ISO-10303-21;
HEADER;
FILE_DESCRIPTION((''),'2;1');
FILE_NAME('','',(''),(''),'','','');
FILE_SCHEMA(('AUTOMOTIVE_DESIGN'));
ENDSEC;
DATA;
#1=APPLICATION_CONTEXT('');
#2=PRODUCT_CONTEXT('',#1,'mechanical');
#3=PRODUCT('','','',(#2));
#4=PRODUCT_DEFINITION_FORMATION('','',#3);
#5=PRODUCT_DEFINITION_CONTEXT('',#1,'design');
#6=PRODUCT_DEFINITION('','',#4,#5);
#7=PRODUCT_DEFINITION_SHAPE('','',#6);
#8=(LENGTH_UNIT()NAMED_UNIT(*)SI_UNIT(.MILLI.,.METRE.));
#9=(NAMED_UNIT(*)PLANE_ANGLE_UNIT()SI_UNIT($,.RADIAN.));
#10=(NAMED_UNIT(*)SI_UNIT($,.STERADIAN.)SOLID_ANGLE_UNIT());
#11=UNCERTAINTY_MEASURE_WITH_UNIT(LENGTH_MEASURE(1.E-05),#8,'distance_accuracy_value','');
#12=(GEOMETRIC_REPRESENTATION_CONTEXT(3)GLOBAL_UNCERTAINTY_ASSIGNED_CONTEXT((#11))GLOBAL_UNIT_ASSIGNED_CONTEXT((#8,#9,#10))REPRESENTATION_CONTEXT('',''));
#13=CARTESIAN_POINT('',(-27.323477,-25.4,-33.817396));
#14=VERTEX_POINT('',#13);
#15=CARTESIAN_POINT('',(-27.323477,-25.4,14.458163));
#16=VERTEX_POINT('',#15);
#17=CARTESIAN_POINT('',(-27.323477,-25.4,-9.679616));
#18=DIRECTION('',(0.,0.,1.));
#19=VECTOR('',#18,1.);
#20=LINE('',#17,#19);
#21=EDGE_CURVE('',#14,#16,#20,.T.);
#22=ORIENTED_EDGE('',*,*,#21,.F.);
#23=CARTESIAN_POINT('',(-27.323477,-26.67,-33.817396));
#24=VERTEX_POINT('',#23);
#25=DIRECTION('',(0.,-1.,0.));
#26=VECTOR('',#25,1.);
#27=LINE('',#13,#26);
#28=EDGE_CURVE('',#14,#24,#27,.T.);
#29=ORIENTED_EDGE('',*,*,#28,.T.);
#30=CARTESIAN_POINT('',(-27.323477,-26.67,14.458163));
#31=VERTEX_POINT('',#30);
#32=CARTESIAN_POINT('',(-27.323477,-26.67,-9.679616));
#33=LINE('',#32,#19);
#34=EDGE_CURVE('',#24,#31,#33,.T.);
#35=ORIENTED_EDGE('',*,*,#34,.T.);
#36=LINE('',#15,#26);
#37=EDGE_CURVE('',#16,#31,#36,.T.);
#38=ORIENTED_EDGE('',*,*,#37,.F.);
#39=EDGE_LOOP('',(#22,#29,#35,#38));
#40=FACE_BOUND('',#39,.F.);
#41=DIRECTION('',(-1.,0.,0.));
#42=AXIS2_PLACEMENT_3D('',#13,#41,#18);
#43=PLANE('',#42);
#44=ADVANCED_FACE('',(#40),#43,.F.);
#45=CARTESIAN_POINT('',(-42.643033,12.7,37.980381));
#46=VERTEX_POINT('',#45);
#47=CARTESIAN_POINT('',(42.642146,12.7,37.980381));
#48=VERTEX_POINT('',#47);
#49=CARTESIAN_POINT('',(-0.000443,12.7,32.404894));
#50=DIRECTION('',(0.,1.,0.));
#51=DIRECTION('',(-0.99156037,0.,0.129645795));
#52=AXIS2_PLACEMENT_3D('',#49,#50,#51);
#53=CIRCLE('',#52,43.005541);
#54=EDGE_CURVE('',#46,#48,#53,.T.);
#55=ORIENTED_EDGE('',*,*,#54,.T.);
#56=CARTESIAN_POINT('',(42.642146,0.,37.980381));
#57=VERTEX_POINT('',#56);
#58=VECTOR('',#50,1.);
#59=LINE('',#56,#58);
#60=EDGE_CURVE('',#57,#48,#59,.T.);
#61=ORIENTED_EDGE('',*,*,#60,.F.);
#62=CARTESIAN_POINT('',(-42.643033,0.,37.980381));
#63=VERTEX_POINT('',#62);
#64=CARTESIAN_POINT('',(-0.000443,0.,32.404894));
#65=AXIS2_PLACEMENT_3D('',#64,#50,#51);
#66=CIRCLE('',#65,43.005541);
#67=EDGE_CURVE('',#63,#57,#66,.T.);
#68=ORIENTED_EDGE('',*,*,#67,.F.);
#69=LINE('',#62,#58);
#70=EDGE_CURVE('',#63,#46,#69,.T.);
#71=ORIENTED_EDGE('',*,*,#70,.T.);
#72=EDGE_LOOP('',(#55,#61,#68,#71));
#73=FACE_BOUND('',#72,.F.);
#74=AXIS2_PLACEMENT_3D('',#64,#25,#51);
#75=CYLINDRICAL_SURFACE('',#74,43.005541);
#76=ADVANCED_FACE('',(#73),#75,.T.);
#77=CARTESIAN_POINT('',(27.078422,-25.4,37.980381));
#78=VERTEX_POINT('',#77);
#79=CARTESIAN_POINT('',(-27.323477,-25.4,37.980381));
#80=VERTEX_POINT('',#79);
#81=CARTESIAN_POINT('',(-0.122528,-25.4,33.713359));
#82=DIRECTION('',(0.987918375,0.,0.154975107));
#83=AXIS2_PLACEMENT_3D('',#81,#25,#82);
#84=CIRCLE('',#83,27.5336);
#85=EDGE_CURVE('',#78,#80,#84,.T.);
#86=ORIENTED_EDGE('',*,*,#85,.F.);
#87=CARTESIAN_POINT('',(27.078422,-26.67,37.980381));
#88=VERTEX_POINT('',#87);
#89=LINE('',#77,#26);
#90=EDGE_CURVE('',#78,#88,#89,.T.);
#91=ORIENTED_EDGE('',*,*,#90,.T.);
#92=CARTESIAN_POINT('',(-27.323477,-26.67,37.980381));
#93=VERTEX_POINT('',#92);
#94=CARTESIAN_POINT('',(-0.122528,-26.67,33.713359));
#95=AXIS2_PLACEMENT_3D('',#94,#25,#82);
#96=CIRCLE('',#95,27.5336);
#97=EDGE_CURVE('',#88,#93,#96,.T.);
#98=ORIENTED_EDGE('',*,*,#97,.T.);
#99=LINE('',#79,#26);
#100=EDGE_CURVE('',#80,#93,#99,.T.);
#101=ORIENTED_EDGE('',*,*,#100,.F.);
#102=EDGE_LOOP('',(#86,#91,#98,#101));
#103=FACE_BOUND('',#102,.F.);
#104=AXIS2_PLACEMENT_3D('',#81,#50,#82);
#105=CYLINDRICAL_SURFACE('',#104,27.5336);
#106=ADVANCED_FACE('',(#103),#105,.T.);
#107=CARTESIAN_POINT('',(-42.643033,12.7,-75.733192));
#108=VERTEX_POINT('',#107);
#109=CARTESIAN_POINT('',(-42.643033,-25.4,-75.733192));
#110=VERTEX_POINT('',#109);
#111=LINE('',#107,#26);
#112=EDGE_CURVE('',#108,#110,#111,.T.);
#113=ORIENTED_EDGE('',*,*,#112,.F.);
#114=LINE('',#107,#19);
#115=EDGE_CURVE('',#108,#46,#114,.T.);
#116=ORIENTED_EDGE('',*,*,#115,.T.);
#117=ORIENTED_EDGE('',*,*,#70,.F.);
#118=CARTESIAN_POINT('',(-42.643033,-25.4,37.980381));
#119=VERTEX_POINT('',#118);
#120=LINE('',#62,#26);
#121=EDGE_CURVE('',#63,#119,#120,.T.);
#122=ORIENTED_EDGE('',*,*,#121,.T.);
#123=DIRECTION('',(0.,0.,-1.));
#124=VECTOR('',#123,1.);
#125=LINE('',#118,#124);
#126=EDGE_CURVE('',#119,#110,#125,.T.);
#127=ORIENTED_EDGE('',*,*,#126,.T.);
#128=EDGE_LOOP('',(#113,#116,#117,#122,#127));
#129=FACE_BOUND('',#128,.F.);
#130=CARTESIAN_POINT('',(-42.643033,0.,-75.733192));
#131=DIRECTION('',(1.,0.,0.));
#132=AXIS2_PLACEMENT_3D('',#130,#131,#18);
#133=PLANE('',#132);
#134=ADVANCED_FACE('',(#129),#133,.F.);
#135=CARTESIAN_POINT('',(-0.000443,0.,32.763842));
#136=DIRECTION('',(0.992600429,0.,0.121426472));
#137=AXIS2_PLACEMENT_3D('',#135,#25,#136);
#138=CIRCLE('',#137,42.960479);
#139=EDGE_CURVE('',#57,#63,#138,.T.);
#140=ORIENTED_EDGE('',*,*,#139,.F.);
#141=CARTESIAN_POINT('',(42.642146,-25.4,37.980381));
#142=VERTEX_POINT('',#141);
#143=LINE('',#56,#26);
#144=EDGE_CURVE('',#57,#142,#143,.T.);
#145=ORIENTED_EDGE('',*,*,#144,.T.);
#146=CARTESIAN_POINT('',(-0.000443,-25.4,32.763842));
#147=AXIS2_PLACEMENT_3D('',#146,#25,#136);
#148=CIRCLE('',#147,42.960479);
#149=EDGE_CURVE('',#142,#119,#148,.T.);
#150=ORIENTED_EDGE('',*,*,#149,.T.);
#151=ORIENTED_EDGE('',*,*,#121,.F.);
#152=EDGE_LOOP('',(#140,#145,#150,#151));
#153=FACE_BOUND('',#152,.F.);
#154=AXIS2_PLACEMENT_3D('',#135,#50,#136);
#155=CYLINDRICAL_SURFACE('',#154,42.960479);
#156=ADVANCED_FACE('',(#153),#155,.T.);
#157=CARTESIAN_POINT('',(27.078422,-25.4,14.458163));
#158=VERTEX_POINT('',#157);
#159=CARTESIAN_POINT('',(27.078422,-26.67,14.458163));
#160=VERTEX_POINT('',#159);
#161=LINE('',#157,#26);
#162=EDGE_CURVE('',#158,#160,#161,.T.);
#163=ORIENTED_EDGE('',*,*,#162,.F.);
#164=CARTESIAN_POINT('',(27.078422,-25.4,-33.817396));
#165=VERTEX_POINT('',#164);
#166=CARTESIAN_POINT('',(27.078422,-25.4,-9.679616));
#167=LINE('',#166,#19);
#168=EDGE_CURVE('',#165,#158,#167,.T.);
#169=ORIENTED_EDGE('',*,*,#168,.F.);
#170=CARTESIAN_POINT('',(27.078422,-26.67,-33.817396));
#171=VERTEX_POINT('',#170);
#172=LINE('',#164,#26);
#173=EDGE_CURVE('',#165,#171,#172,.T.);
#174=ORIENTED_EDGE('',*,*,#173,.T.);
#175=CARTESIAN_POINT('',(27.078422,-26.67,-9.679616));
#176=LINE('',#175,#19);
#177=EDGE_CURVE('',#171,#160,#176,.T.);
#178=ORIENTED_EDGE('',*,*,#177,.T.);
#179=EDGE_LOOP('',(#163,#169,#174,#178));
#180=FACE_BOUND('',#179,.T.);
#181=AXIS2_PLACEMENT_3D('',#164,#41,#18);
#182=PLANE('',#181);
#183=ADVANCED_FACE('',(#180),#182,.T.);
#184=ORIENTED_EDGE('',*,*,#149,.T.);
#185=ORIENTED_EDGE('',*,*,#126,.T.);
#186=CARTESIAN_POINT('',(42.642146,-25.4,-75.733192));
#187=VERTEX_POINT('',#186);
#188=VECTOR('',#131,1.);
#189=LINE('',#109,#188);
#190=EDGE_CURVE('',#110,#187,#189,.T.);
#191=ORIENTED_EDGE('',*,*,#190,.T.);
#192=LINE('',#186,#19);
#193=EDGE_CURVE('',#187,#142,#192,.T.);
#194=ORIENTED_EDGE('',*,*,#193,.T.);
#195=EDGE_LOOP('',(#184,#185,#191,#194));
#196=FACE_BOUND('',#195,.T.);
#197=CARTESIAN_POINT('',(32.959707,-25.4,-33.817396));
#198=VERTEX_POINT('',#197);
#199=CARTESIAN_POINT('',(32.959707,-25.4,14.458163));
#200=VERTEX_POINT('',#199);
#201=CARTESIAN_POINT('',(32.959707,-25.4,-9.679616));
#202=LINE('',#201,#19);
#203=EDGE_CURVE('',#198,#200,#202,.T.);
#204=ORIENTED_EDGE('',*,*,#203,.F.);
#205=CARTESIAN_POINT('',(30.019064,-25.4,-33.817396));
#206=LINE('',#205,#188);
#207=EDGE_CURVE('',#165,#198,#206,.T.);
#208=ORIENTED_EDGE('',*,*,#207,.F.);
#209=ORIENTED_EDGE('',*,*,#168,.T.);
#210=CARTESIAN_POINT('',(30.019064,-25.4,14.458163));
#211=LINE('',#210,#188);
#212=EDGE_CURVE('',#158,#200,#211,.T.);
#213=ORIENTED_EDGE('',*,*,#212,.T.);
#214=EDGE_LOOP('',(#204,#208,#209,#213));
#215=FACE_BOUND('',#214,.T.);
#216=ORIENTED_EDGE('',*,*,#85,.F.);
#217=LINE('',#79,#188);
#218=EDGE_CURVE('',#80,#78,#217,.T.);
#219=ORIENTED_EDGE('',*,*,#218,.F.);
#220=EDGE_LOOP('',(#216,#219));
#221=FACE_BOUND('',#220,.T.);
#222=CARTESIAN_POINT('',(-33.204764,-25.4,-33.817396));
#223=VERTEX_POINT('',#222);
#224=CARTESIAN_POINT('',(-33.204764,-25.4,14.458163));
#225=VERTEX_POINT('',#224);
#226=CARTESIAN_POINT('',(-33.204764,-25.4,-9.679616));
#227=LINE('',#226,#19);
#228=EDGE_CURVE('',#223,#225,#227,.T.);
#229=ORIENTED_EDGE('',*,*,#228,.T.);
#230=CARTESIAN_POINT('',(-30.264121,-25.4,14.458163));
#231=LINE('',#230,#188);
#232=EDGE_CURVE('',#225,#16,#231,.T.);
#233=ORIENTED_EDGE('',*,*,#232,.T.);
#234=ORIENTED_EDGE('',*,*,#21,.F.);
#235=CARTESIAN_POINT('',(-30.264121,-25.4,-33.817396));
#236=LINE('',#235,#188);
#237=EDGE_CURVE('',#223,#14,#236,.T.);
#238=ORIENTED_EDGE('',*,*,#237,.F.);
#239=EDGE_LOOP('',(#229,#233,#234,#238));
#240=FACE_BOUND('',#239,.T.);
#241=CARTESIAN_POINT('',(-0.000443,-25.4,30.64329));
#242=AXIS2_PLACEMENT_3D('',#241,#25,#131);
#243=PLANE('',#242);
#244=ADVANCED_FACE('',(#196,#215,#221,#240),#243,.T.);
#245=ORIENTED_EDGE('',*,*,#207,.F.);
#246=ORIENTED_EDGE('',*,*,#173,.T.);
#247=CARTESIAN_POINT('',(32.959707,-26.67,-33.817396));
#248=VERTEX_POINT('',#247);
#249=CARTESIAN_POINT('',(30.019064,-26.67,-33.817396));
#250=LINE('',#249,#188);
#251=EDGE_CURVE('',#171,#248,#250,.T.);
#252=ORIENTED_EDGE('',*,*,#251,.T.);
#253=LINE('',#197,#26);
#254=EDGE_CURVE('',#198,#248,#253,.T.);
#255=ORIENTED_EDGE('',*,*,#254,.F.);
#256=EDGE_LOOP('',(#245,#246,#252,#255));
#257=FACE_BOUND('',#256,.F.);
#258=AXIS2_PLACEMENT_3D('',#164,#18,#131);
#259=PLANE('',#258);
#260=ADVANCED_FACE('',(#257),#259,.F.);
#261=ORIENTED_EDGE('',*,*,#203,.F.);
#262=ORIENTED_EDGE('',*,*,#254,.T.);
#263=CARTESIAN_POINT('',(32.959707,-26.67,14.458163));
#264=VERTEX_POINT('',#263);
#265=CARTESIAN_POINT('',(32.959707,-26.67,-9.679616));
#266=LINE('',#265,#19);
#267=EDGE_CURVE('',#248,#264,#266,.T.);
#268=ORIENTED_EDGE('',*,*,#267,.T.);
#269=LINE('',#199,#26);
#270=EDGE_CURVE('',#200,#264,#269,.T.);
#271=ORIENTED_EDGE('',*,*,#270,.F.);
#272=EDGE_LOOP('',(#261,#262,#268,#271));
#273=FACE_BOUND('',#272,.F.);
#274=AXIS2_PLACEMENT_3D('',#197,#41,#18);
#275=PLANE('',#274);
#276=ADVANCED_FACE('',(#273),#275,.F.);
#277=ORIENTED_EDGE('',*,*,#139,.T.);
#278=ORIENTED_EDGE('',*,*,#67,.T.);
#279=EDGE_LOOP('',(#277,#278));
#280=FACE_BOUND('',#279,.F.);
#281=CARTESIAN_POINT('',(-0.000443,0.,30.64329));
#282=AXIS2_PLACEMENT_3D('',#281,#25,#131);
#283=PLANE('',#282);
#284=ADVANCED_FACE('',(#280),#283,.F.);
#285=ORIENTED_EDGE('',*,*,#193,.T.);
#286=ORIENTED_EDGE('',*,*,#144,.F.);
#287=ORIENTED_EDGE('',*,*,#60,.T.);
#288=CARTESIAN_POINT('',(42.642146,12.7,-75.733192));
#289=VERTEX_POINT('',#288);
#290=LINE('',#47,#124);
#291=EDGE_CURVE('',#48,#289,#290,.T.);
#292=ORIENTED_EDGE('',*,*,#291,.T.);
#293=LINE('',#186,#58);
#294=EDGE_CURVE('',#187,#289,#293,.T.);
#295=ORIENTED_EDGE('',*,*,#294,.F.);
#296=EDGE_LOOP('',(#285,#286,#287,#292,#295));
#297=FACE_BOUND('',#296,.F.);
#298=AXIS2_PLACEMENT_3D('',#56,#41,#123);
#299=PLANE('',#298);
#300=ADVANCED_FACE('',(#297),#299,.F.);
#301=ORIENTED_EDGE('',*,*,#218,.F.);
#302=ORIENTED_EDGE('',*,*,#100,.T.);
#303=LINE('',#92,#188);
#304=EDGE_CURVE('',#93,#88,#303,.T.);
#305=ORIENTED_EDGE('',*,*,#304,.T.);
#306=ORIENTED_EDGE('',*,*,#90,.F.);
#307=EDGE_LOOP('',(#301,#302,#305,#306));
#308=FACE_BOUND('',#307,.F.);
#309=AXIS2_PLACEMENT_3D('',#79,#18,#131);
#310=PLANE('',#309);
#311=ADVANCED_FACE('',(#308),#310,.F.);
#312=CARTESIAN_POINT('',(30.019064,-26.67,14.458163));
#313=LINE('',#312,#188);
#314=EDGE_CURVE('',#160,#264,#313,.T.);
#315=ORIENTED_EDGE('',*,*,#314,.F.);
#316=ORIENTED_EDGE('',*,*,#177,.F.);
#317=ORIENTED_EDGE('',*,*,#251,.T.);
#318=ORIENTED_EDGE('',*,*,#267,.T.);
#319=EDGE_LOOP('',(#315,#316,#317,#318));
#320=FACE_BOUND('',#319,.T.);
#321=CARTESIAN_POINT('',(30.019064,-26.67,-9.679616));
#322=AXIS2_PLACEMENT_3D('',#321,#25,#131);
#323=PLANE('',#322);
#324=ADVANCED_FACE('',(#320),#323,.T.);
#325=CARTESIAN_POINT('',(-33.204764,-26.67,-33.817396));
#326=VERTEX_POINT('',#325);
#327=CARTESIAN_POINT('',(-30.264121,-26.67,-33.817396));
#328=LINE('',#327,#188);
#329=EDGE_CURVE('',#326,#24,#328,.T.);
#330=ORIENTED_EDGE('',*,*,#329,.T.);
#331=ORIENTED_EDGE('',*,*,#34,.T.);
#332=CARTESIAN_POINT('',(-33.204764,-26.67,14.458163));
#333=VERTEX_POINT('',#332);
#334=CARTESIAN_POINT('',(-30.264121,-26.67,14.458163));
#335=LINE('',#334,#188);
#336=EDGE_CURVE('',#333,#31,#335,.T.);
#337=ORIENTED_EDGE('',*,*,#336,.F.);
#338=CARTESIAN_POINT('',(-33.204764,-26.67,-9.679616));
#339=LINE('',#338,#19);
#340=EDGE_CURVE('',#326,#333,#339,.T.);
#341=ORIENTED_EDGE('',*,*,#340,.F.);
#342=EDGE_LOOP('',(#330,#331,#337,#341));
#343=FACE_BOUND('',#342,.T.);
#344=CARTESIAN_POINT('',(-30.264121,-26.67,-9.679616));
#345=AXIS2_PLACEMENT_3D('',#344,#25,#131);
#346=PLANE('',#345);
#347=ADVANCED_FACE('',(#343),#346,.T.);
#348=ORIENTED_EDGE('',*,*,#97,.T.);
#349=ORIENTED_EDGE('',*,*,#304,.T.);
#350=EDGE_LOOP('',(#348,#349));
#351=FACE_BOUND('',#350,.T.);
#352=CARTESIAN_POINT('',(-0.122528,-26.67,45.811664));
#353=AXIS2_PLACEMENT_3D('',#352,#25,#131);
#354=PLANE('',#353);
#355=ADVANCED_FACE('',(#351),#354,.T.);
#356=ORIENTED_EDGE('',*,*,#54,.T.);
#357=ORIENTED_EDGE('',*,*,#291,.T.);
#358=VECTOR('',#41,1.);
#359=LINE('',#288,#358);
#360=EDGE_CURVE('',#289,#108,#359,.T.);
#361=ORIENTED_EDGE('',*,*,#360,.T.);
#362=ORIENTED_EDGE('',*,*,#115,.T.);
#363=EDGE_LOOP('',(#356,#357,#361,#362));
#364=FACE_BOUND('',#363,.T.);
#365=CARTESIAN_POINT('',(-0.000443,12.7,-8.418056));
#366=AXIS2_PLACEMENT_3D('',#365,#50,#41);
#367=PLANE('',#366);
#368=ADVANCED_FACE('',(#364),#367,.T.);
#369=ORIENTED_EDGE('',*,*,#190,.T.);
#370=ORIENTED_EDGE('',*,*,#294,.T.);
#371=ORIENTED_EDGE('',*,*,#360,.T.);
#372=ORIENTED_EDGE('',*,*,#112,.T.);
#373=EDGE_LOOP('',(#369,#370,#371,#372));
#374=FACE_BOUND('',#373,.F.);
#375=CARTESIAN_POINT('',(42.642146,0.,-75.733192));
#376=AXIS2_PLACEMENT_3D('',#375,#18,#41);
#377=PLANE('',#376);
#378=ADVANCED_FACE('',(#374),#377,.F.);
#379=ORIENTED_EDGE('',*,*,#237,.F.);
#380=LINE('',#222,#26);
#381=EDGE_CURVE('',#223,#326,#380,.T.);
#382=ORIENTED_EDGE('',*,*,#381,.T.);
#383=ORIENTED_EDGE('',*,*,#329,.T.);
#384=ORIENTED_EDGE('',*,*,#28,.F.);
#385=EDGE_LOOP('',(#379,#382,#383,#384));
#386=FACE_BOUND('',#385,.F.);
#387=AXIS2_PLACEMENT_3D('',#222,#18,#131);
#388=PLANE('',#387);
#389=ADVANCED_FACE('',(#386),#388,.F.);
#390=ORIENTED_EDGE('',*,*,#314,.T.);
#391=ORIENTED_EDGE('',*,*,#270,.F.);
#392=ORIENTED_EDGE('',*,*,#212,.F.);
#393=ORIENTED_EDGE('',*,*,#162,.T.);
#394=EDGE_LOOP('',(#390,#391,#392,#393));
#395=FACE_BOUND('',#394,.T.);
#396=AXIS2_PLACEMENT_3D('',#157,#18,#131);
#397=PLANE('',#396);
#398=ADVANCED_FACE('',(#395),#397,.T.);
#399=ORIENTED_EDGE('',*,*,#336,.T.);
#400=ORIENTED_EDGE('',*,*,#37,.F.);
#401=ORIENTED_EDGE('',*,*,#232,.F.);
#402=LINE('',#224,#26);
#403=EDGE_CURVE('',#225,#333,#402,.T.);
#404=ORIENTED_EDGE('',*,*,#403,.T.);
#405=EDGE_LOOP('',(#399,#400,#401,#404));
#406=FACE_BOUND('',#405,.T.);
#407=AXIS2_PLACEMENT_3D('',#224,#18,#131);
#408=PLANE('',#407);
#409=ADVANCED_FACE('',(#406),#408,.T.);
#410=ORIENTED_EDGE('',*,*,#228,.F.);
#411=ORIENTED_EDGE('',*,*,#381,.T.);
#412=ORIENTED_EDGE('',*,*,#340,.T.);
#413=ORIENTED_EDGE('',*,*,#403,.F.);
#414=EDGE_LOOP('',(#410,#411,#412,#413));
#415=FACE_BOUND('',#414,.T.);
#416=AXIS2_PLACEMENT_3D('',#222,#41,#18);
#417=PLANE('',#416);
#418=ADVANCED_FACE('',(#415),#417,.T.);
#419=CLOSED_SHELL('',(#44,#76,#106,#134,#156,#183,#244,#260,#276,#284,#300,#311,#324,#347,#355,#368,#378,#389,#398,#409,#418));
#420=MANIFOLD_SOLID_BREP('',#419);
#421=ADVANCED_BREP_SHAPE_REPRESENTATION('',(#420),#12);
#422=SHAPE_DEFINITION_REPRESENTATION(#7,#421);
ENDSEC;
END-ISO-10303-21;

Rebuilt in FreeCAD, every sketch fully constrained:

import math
import FreeCAD as App
import Part
import Sketcher
from FreeCAD import Vector
Q = App.Units.Quantity

doc = App.newDocument("Part")
body = doc.addObject("PartDesign::Body", "Body")

# Sketch on XZ plane
sketch1 = body.newObject("Sketcher::SketchObject", "Sketch")
sketch1.AttachmentSupport = (doc.getObject("XZ_Plane"), [""])
sketch1.MapMode = "FlatFace"
sketch1.addGeometry([
    Part.LineSegment(Vector(-43, 38, 0), Vector(-43, -76, 0)),
    Part.LineSegment(Vector(-43, -76, 0), Vector(43, -76, 0)),
    Part.LineSegment(Vector(43, -76, 0), Vector(43, 38, 0)),
    Part.ArcOfCircle(Part.Circle(Vector(0, 33, 0), Vector(0, 0, 1), 43), math.radians(7), math.radians(173)),
], False)
sketch1.addConstraint([
    Sketcher.Constraint("Coincident", 0, 2, 1, 1),
    Sketcher.Constraint("Coincident", 1, 2, 2, 1),
    Sketcher.Constraint("Coincident", 2, 2, 3, 1),
    Sketcher.Constraint("Coincident", 3, 2, 0, 1),
    Sketcher.Constraint("Vertical", 0),
    Sketcher.Constraint("Horizontal", 1),
    Sketcher.Constraint("Vertical", 2),
    Sketcher.Constraint("Horizontal", 2, 2, 3, 2),
    Sketcher.Constraint("Radius", 3, 42.960479),
    Sketcher.Constraint("DistanceX", 1, 1, 1, 2, 85.285179),
    Sketcher.Constraint("DistanceY", 0, 2, 0, 1, 113.713574),
    Sketcher.Constraint("DistanceY", -1, 1, 2, 2, 37.980381),
    Sketcher.Constraint("DistanceX", 3, 3, -1, 1, 0.000443),
])
pad1 = body.newObject("PartDesign::Pad", "Pad")
pad1.Profile = sketch1
pad1.Length = Q("1 in")

# Sketch on XZ plane
sketch2 = body.newObject("Sketcher::SketchObject", "Sketch001")
sketch2.AttachmentSupport = (doc.getObject("XZ_Plane"), [""])
sketch2.MapMode = "FlatFace"
sketch2.addGeometry([
    Part.ArcOfCircle(Part.Circle(Vector(0, 32, 0), Vector(0, 0, 1), 43), math.radians(7), math.radians(173)),
    Part.LineSegment(Vector(43, 38, 0), Vector(43, -76, 0)),
    Part.LineSegment(Vector(43, -76, 0), Vector(-43, -76, 0)),
    Part.LineSegment(Vector(-43, -76, 0), Vector(-43, 38, 0)),
], False)
sketch2.addConstraint([
    Sketcher.Constraint("Coincident", 0, 1, 1, 1),
    Sketcher.Constraint("Coincident", 1, 2, 2, 1),
    Sketcher.Constraint("Coincident", 2, 2, 3, 1),
    Sketcher.Constraint("Coincident", 3, 2, 0, 2),
    Sketcher.Constraint("Vertical", 1),
    Sketcher.Constraint("Horizontal", 2),
    Sketcher.Constraint("Vertical", 3),
    Sketcher.Constraint("Horizontal", 0, 1, 3, 2),
    Sketcher.Constraint("Radius", 0, 43.005541),
    Sketcher.Constraint("DistanceX", 2, 2, 2, 1, 85.285179),
    Sketcher.Constraint("DistanceY", 1, 2, 1, 1, 113.713574),
    Sketcher.Constraint("DistanceY", -1, 1, 0, 1, 37.980381),
    Sketcher.Constraint("DistanceX", 0, 3, -1, 1, 0.000443),
])
pad2 = body.newObject("PartDesign::Pad", "Pad001")
pad2.Profile = sketch2
pad2.Length = Q("0.5 in")
pad2.Reversed = True

# Sketch on XZ plane
sketch3 = body.newObject("Sketcher::SketchObject", "Sketch002")
sketch3.AttachmentSupport = (doc.getObject("XZ_Plane"), [""])
sketch3.MapMode = "FlatFace"
sketch3.AttachmentOffset = App.Placement(Vector(0, 0, 1 * 25.4), App.Rotation())
sketch3.addGeometry([
    Part.LineSegment(Vector(-33, 14, 0), Vector(-33, -34, 0)),  # 0
    Part.LineSegment(Vector(-33, -34, 0), Vector(-27, -34, 0)),  # 1
    Part.LineSegment(Vector(-27, -34, 0), Vector(-27, 14, 0)),  # 2
    Part.LineSegment(Vector(-27, 14, 0), Vector(-33, 14, 0)),  # 3
    Part.LineSegment(Vector(27, 14, 0), Vector(27, -34, 0)),  # 4
    Part.LineSegment(Vector(27, -34, 0), Vector(33, -34, 0)),  # 5
    Part.LineSegment(Vector(33, -34, 0), Vector(33, 14, 0)),  # 6
    Part.LineSegment(Vector(33, 14, 0), Vector(27, 14, 0)),  # 7
], False)
sketch3.addConstraint([
    Sketcher.Constraint("Coincident", 0, 2, 1, 1),
    Sketcher.Constraint("Coincident", 1, 2, 2, 1),
    Sketcher.Constraint("Coincident", 2, 2, 3, 1),
    Sketcher.Constraint("Coincident", 3, 2, 0, 1),
    Sketcher.Constraint("Coincident", 4, 2, 5, 1),
    Sketcher.Constraint("Coincident", 5, 2, 6, 1),
    Sketcher.Constraint("Coincident", 6, 2, 7, 1),
    Sketcher.Constraint("Coincident", 7, 2, 4, 1),
    Sketcher.Constraint("Vertical", 0),
    Sketcher.Constraint("Horizontal", 1),
    Sketcher.Constraint("Vertical", 2),
    Sketcher.Constraint("Horizontal", 3),
    Sketcher.Constraint("Vertical", 4),
    Sketcher.Constraint("Horizontal", 5),
    Sketcher.Constraint("Vertical", 6),
    Sketcher.Constraint("Horizontal", 7),
    Sketcher.Constraint("Horizontal", 1, 2, 4, 2),
    Sketcher.Constraint("Horizontal", 3, 2, 6, 2),
    Sketcher.Constraint("Equal", 3, 5),
    Sketcher.Constraint("DistanceY", 0, 2, 0, 1, 48.275558),
    Sketcher.Constraint("DistanceX", 1, 2, 4, 2, 54.401899),
    Sketcher.Constraint("DistanceX", 1, 1, 1, 2, 5.881287),
    Sketcher.Constraint("DistanceX", -1, 1, 4, 2, 27.078422),
    Sketcher.Constraint("DistanceY", 0, 2, -1, 1, 33.817396),
])
pad3 = body.newObject("PartDesign::Pad", "Pad002")
pad3.Profile = sketch3
pad3.Length = Q("0.05 in")

# Sketch on XZ plane
sketch4 = body.newObject("Sketcher::SketchObject", "Sketch003")
sketch4.AttachmentSupport = (doc.getObject("XZ_Plane"), [""])
sketch4.MapMode = "FlatFace"
sketch4.AttachmentOffset = App.Placement(Vector(0, 0, 1 * 25.4), App.Rotation())
sketch4.addGeometry([
    Part.ArcOfCircle(Part.Circle(Vector(0, 34, 0), Vector(0, 0, 1), 28), math.radians(9), math.radians(171)),
    Part.LineSegment(Vector(-27, 38, 0), Vector(27, 38, 0)),
], False)
sketch4.addConstraint([
    Sketcher.Constraint("Coincident", 0, 1, 1, 2),
    Sketcher.Constraint("Coincident", 1, 1, 0, 2),
    Sketcher.Constraint("Horizontal", 1),
    Sketcher.Constraint("Radius", 0, Q("1.084 in")),
    Sketcher.Constraint("DistanceX", 1, 1, 1, 2, 54.401899),
    Sketcher.Constraint("DistanceY", -1, 1, 0, 3, 33.713359),
    Sketcher.Constraint("DistanceX", -1, 1, 0, 1, 27.078422),
])
pad4 = body.newObject("PartDesign::Pad", "Pad003")
pad4.Profile = sketch4
pad4.Length = Q("0.05 in")

doc.recompute()
